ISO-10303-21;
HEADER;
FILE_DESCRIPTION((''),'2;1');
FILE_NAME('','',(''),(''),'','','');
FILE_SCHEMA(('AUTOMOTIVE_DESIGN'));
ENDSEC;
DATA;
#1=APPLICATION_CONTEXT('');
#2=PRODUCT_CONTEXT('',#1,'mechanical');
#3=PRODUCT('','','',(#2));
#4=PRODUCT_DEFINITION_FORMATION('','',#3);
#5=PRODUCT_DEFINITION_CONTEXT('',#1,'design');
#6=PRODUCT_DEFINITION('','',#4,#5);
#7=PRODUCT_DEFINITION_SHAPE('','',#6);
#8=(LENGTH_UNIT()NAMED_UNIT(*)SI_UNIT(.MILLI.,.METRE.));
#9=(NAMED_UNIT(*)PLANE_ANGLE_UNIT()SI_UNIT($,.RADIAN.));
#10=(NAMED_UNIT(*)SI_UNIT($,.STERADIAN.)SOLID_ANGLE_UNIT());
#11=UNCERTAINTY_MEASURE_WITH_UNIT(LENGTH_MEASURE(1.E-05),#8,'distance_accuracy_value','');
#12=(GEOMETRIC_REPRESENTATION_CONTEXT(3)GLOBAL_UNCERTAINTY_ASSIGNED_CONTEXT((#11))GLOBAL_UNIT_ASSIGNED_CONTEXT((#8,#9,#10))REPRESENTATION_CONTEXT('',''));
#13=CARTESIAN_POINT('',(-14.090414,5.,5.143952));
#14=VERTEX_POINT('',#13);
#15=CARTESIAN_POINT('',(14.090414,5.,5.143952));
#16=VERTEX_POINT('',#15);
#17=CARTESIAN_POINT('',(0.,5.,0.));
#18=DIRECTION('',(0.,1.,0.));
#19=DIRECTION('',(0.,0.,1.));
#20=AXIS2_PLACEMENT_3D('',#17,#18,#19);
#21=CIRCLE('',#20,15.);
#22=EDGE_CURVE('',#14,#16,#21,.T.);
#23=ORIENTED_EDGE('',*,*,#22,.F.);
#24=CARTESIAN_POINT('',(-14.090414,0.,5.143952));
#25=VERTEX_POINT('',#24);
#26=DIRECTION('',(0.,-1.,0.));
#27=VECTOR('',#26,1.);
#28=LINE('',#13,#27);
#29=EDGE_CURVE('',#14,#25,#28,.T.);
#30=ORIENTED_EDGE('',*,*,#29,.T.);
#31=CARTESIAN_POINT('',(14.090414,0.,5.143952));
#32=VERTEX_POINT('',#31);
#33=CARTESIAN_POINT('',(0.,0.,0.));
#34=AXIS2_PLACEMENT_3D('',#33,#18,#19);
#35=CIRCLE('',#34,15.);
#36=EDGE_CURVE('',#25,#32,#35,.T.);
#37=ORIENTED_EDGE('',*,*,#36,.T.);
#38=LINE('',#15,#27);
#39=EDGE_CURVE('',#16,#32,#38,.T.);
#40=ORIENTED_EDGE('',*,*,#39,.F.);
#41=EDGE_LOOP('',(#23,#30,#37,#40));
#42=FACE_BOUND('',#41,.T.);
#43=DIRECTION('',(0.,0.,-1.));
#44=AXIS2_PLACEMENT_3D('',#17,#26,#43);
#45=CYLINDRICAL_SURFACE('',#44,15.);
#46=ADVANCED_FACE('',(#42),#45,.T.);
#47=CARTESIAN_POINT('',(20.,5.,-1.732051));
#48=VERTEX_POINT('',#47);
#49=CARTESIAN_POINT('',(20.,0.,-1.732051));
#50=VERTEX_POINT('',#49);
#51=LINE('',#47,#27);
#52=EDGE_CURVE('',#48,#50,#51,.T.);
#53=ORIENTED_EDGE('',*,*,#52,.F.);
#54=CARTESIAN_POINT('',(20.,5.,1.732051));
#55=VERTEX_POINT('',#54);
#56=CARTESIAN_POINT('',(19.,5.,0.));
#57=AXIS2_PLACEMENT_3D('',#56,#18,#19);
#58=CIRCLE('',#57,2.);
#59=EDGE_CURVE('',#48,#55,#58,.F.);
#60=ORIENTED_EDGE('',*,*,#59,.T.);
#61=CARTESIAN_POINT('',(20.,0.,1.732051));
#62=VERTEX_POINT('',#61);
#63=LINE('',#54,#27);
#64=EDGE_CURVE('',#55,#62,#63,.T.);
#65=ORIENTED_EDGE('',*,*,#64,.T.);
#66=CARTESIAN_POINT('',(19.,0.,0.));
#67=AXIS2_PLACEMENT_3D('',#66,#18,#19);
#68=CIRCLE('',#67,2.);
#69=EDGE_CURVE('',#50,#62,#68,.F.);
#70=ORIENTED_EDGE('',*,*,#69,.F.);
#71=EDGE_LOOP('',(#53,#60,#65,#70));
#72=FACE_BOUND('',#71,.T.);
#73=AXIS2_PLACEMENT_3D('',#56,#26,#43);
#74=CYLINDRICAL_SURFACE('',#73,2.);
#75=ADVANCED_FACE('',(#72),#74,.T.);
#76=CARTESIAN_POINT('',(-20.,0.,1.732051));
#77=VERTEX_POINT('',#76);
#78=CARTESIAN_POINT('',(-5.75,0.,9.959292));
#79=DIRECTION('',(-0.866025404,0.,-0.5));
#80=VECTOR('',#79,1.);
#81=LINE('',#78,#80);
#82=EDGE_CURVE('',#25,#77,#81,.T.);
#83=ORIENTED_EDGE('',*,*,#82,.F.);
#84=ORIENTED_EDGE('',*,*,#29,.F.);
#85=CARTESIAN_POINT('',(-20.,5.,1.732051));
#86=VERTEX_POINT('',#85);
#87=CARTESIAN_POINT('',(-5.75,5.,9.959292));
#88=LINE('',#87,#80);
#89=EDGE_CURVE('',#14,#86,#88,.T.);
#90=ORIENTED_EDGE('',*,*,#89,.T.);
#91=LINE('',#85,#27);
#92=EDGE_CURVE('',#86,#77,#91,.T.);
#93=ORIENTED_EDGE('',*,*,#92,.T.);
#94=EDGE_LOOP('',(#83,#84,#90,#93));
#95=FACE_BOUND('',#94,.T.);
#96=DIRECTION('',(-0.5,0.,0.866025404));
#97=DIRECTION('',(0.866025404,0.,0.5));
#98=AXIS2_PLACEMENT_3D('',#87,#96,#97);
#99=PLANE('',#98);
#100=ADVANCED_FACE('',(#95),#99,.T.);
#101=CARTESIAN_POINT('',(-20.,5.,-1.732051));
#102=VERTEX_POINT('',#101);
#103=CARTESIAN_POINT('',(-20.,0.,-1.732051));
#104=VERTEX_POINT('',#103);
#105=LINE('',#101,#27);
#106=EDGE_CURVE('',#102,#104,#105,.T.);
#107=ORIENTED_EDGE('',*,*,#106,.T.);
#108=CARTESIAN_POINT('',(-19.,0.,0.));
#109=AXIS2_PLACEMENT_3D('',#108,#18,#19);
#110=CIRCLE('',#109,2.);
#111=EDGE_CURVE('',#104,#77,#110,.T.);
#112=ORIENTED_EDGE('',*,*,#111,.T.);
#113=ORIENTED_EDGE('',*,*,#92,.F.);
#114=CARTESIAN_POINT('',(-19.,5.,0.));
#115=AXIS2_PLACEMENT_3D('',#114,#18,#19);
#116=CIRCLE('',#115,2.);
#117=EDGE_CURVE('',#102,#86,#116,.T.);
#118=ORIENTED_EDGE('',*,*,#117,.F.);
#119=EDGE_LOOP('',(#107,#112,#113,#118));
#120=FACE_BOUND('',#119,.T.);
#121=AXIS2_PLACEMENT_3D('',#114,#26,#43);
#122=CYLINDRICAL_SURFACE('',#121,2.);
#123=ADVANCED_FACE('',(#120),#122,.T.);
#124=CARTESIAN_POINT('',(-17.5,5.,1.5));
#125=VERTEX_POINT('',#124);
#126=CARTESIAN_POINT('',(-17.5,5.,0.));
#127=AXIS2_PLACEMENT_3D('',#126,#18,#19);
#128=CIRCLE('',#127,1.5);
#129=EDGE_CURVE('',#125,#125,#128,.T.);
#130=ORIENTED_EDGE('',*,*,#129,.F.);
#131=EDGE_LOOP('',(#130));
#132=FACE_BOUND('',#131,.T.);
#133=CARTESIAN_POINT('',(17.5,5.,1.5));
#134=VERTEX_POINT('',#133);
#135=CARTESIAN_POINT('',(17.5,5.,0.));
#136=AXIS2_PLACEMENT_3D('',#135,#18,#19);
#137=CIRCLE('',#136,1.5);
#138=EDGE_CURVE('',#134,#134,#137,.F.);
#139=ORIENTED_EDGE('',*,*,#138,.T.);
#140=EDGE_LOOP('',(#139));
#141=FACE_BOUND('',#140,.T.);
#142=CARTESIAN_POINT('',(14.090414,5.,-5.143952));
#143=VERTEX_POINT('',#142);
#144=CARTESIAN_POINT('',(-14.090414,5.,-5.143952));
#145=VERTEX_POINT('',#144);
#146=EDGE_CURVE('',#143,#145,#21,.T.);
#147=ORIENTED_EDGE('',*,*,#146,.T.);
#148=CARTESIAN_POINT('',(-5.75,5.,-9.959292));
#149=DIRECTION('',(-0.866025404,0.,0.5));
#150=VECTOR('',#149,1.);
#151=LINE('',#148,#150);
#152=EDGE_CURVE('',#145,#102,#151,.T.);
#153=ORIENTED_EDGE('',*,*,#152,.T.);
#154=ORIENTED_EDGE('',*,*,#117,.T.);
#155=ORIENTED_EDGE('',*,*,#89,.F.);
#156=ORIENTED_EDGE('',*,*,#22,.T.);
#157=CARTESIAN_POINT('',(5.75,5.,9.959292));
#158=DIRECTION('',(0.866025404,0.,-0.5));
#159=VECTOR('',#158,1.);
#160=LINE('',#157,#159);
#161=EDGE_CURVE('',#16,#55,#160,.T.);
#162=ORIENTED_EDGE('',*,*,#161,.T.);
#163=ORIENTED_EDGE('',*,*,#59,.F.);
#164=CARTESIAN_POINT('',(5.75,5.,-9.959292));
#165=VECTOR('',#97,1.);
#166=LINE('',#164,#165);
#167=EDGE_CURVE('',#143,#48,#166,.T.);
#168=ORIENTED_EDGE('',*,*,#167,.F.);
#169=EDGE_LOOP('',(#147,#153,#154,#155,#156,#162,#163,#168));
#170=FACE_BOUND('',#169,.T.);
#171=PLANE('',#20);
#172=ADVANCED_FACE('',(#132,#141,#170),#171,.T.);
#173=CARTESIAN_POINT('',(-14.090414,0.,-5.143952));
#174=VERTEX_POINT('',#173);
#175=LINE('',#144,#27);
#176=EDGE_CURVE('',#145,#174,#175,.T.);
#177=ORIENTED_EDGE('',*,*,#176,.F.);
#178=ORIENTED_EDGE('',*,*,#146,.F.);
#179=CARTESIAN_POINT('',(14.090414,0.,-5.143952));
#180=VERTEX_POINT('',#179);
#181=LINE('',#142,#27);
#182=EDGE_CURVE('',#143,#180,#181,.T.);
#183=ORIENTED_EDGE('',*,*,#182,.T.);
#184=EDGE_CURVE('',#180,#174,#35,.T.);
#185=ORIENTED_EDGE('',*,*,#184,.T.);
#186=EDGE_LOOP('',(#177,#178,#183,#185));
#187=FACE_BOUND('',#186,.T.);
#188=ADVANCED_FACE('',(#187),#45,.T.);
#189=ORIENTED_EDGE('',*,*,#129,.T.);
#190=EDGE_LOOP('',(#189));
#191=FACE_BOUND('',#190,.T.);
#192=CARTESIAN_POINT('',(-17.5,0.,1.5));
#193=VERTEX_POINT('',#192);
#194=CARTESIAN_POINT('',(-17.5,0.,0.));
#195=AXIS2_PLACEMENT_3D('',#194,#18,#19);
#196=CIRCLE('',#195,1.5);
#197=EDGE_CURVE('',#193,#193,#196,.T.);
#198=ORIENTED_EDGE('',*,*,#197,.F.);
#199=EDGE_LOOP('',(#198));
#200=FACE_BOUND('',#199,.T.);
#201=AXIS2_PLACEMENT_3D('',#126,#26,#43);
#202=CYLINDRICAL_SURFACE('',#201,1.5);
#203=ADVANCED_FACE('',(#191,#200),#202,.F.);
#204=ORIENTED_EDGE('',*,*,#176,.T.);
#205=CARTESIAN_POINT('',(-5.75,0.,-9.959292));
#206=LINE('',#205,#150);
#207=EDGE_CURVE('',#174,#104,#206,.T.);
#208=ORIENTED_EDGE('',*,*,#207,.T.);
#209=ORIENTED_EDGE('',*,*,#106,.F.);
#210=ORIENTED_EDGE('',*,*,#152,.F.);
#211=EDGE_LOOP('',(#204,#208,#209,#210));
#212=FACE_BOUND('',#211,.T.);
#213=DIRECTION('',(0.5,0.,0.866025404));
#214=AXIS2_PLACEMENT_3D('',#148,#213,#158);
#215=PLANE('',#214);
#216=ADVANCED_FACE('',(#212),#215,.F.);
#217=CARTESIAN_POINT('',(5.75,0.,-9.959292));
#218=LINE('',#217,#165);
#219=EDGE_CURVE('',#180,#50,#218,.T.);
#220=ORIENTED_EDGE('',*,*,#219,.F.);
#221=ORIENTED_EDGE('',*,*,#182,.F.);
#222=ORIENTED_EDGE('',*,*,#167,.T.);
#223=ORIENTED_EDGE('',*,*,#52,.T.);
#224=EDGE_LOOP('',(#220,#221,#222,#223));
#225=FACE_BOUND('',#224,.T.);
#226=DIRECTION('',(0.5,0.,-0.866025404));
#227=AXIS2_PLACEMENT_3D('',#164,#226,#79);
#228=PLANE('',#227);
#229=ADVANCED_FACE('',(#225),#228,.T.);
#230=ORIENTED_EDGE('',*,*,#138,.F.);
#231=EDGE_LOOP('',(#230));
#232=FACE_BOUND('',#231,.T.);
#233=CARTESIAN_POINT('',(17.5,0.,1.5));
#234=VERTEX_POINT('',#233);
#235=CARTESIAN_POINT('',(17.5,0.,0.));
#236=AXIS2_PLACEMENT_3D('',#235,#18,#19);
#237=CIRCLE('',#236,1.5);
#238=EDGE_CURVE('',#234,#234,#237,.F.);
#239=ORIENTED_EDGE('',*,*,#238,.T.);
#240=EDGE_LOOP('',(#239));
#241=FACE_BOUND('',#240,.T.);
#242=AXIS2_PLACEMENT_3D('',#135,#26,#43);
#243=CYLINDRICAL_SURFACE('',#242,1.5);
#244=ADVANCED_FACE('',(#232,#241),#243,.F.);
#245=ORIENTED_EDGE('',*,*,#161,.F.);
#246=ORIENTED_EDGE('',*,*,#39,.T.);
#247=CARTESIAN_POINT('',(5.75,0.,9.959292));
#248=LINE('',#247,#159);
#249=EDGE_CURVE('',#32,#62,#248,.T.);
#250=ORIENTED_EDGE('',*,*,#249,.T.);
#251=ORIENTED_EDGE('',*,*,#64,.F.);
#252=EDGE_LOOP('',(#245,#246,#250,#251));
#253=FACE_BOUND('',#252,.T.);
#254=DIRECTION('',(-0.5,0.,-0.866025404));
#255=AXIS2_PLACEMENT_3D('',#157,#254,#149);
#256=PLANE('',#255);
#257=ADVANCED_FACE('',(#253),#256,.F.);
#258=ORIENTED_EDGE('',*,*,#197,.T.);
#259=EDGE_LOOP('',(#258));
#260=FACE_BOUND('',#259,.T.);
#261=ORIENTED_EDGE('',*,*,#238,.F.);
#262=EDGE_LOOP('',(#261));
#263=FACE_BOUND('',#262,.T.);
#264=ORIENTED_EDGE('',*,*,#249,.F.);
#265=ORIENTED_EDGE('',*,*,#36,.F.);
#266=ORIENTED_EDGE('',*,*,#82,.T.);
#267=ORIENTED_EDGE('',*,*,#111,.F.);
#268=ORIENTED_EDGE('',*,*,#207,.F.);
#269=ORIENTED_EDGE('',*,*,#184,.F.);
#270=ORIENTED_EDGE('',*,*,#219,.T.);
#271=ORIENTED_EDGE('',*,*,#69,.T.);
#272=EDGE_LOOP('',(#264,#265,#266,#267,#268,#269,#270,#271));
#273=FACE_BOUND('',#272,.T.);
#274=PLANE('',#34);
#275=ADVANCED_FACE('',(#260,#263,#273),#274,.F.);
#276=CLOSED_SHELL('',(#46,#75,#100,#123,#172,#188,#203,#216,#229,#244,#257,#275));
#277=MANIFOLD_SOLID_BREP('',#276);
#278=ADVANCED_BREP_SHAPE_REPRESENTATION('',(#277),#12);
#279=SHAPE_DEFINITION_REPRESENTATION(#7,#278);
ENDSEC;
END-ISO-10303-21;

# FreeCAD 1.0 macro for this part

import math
import FreeCAD as App
import Part
import Sketcher
from FreeCAD import Vector
Q = App.Units.Quantity

doc = App.newDocument("Part")
body = doc.addObject("PartDesign::Body", "Body")

# Sketch on XZ plane
sketch1 = body.newObject("Sketcher::SketchObject", "Sketch")
sketch1.AttachmentSupport = (doc.getObject("XZ_Plane"), [""])
sketch1.MapMode = "FlatFace"
sketch1.addGeometry([
    Part.LineSegment(Vector(-20, 1.732051, 0), Vector(-14.090414, 5.143952, 0)),  # 0
    Part.ArcOfCircle(Part.Circle(Vector(0, 0, 0), Vector(0, 0, 1), 15), math.radians(20.055495), math.radians(159.944505)),  # 1
    Part.LineSegment(Vector(14.090414, 5.143952, 0), Vector(20, 1.732051, 0)),  # 2
    Part.ArcOfCircle(Part.Circle(Vector(19, 0, 0), Vector(0, 0, 1), 2), math.radians(-60), math.radians(60)),  # 3
    Part.LineSegment(Vector(20, -1.732051, 0), Vector(14.090414, -5.143952, 0)),  # 4
    Part.ArcOfCircle(Part.Circle(Vector(0, 0, 0), Vector(0, 0, 1), 15), math.radians(-90), math.radians(-20.055495)),  # 5
    Part.ArcOfCircle(Part.Circle(Vector(0, 0, 0), Vector(0, 0, 1), 15), math.radians(-159.944505), math.radians(-90)),  # 6
    Part.LineSegment(Vector(-14.090414, -5.143952, 0), Vector(-20, -1.732051, 0)),  # 7
    Part.ArcOfCircle(Part.Circle(Vector(-19, 0, 0), Vector(0, 0, 1), 2), math.radians(120), math.radians(240)),  # 8
    Part.Circle(Vector(-17.5, 0, 0), Vector(0, 0, 1), 1.5),  # 9
    Part.Circle(Vector(17.5, 0, 0), Vector(0, 0, 1), 1.5),  # 10
], False)
sketch1.addConstraint([
    Sketcher.Constraint("Coincident", 0, 2, 1, 2),
    Sketcher.Constraint("Coincident", 1, 1, 2, 1),
    Sketcher.Constraint("Tangent", 2, 2, 3, 2),
    Sketcher.Constraint("Tangent", 3, 1, 4, 1),
    Sketcher.Constraint("Coincident", 4, 2, 5, 2),
    Sketcher.Constraint("Tangent", 5, 1, 6, 2),
    Sketcher.Constraint("Coincident", 6, 1, 7, 1),
    Sketcher.Constraint("Tangent", 7, 2, 8, 2),
    Sketcher.Constraint("Tangent", 8, 1, 0, 1),
    Sketcher.Constraint("Coincident", 1, 3, -1, 1),
    Sketcher.Constraint("Coincident", 5, 3, -1, 1),
    Sketcher.Constraint("Equal", 1, 5),
    Sketcher.Constraint("Equal", 5, 6),
    Sketcher.Constraint("Equal", 3, 8),
    Sketcher.Constraint("Equal", 9, 10),
    Sketcher.Constraint("Symmetric", 3, 3, 8, 3, -1, 1),
    Sketcher.Constraint("Symmetric", 9, 3, 10, 3, -1, 1),
    Sketcher.Constraint("Symmetric", 3, 1, 7, 2, -2),
    Sketcher.Constraint("PointOnObject", 9, 3, -1),
    Sketcher.Constraint("PointOnObject", 5, 1, -2),
    Sketcher.Constraint("Parallel", 0, 4),
    Sketcher.Constraint("Parallel", 2, 7),
    Sketcher.Constraint("Diameter", 9, Q("3 mm")),
    Sketcher.Constraint("Radius", 1, Q("15 mm")),
    Sketcher.Constraint("Radius", 3, Q("2 mm")),
    Sketcher.Constraint("Angle", 0, Q("30 deg")),
    Sketcher.Constraint("DistanceX", -1, 1, 3, 3, Q("19 mm")),
    Sketcher.Constraint("DistanceX", 9, 3, 10, 3, Q("35 mm")),
])
pad1 = body.newObject("PartDesign::Pad", "Pad")
pad1.Profile = sketch1
pad1.Length = 5
pad1.Reversed = True

doc.recompute()
